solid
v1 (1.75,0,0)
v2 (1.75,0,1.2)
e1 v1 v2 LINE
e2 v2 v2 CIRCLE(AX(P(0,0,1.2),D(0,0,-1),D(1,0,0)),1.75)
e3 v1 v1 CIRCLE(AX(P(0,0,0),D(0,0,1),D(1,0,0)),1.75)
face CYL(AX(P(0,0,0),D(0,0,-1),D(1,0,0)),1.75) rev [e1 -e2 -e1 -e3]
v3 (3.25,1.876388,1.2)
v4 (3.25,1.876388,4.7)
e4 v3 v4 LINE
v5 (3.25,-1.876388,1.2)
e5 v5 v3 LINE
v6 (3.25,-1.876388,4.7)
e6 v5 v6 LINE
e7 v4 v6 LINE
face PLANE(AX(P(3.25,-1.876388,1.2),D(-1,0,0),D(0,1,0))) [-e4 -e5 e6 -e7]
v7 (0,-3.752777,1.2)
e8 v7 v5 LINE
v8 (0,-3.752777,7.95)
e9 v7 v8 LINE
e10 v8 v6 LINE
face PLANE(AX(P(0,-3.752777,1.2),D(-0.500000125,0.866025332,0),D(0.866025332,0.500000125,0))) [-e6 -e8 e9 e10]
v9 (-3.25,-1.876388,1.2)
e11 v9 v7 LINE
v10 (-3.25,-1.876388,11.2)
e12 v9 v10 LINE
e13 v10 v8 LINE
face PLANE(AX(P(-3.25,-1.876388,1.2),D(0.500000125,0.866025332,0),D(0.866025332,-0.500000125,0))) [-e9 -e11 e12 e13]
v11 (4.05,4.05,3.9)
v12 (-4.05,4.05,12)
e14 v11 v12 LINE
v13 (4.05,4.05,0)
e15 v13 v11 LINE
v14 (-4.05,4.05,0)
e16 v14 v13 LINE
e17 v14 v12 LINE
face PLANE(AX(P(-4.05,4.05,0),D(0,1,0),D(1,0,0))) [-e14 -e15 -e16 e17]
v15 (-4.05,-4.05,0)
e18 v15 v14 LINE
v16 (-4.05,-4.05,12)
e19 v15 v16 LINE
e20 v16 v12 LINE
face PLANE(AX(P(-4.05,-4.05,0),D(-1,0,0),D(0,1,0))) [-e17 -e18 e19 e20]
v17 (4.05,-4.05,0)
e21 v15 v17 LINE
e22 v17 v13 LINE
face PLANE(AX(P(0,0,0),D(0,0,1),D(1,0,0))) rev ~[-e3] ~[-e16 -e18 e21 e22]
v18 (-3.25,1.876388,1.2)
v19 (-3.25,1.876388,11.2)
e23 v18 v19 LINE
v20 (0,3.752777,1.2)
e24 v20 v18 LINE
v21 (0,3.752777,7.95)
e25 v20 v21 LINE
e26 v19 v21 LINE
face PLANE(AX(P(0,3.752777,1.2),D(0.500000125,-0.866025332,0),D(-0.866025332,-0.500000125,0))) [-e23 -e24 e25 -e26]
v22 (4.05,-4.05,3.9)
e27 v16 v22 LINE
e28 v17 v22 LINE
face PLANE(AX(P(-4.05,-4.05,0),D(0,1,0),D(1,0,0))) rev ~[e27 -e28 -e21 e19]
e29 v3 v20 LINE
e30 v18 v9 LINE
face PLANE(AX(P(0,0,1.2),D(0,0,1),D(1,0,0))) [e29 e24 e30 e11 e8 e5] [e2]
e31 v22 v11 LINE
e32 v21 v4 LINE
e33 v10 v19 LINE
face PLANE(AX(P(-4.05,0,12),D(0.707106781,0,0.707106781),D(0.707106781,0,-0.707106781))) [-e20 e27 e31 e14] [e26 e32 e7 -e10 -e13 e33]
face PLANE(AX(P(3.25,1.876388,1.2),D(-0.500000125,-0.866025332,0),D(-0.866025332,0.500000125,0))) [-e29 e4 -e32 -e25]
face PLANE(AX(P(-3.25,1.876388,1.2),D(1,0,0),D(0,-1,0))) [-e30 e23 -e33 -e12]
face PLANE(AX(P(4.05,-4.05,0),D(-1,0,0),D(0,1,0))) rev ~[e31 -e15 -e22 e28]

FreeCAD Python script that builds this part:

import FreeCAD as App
import Part
import Sketcher
from FreeCAD import Vector
Q = App.Units.Quantity


def add_polygon(sketch, points):
    """Adds a closed chain of lines whose ends are joined by coincident constraints."""
    first, n = sketch.GeometryCount, len(points)
    for a, b in zip(points, points[1:] + points[:1]):
        sketch.addGeometry(Part.LineSegment(App.Vector(*a, 0), App.Vector(*b, 0)), False)
    for i in range(n):
        sketch.addConstraint(Sketcher.Constraint("Coincident", first + i, 2, first + (i + 1) % n, 1))

doc = App.newDocument("Part")
params = doc.addObject("Spreadsheet::Sheet", "Params")
for row, (alias, value) in enumerate([
    ("sketch1_diameter", "3.5 mm"),
    ("sketch1_width", "8.1 mm"),
    ("pad1_length", "12 mm"),
    ("sketch3_width", "8.1 mm"),
], start=1):
    params.set(f"A{row}", alias)
    params.set(f"B{row}", "=" + value)
    params.setAlias(f"B{row}", alias)

body = doc.addObject("PartDesign::Body", "Body")

# Sketch on XY plane
sketch1 = body.newObject("Sketcher::SketchObject", "Sketch")
sketch1.AttachmentSupport = (doc.getObject("XY_Plane"), [""])
sketch1.MapMode = "FlatFace"
add_polygon(sketch1, [(-4, 4), (-4, -4), (4, -4), (4, 4)])  # lines 0-3
sketch1.addGeometry(Part.Circle(Vector(0, 0, 0), Vector(0, 0, 1), 1.8), False)  # 4
sketch1.addConstraint([
    Sketcher.Constraint("Vertical", 0),
    Sketcher.Constraint("Horizontal", 1),
    Sketcher.Constraint("Vertical", 2),
    Sketcher.Constraint("Horizontal", 3),
    Sketcher.Constraint("Coincident", 4, 3, -1, 1),
    Sketcher.Constraint("Symmetric", 0, 2, 2, 2, -1, 1),
    Sketcher.Constraint("Equal", 3, 0),
    Sketcher.Constraint("Diameter", 4, 3.5),
    Sketcher.Constraint("DistanceX", 1, 1, 1, 2, 8.1),
])
sketch1.setExpression("Constraints[11]", "Params.sketch1_diameter")
sketch1.setExpression("Constraints[12]", "Params.sketch1_width")
pad1 = body.newObject("PartDesign::Pad", "Pad")
pad1.Profile = sketch1
pad1.setExpression("Length", "Params.pad1_length")

# Sketch on XY plane
sketch2 = body.newObject("Sketcher::SketchObject", "Sketch001")
sketch2.AttachmentSupport = (doc.getObject("XY_Plane"), [""])
sketch2.MapMode = "FlatFace"
sketch2.AttachmentOffset = App.Placement(Vector(0, 0, 1.2), App.Rotation())
add_polygon(sketch2, [(0, 3.8), (-3.2, 1.9), (-3.2, -1.9), (0, -3.8), (3.2, -1.9), (3.2, 1.9)])  # lines 0-5
sketch2.addConstraint([
    Sketcher.Constraint("Vertical", 1),
    Sketcher.Constraint("Vertical", 4),
    Sketcher.Constraint("Symmetric", 0, 2, 3, 2, -1, 1),
    Sketcher.Constraint("Symmetric", 2, 2, 5, 2, -1, 1),
    Sketcher.Constraint("PointOnObject", 2, 2, -2),
    Sketcher.Constraint("Parallel", 2, 5),
    Sketcher.Constraint("Horizontal", 1, 2, 3, 2),
    Sketcher.Constraint("Angle", 0, Q("-149.999992 deg")),
    Sketcher.Constraint("DistanceX", 1, 2, 3, 2, 6.5),
    Sketcher.Constraint("DistanceY", 1, 2, 1, 1, 3.752776),
])
pocket1 = body.newObject("PartDesign::Pocket", "Pocket")
pocket1.Profile = sketch2
pocket1.Type = "ThroughAll"
pocket1.Reversed = True

# Sketch on XZ plane
sketch3 = body.newObject("Sketcher::SketchObject", "Sketch002")
sketch3.AttachmentSupport = (doc.getObject("XZ_Plane"), [""])
sketch3.MapMode = "FlatFace"
add_polygon(sketch3, [(4, 12), (-4, 12), (4, 4)])  # lines 0-2
sketch3.addConstraint([
    Sketcher.Constraint("Horizontal", 0),
    Sketcher.Constraint("Vertical", 2),
    Sketcher.Constraint("Equal", 0, 2),
    Sketcher.Constraint("DistanceX", 0, 2, 0, 1, 8.1),
    Sketcher.Constraint("DistanceY", -1, 1, 0, 2, 12.0),
    Sketcher.Constraint("DistanceX", 0, 2, -1, 1, 4.05),
])
sketch3.setExpression("Constraints[6]", "Params.sketch3_width")
pocket2 = body.newObject("PartDesign::Pocket", "Pocket001")
pocket2.Profile = sketch3
pocket2.Type = "ThroughAll"
pocket2.Midplane = True

doc.recompute()
